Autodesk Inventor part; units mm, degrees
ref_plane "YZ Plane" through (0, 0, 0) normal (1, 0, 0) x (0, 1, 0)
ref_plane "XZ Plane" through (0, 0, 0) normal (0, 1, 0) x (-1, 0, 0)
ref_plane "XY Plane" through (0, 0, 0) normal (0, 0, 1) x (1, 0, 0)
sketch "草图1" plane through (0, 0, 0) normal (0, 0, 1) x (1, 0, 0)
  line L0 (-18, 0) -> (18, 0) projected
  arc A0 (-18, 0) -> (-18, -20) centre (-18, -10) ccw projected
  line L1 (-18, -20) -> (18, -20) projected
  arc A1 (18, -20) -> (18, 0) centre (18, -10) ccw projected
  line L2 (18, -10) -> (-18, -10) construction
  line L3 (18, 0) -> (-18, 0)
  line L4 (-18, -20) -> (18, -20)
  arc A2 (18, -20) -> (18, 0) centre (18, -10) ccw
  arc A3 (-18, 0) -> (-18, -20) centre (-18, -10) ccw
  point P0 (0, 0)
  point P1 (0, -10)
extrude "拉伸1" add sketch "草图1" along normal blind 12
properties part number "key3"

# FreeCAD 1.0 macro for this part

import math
import FreeCAD as App
import Part
import Sketcher
from FreeCAD import Vector
Q = App.Units.Quantity

doc = App.newDocument("Part")
body = doc.addObject("PartDesign::Body", "Body")

# Sketch on XY plane
sketch1 = body.newObject("Sketcher::SketchObject", "Sketch")
sketch1.AttachmentSupport = (doc.getObject("XY_Plane"), [""])
sketch1.MapMode = "FlatFace"
sketch1.addGeometry([
    Part.LineSegment(Vector(18, 0, 0), Vector(-18, 0, 0)),
    Part.ArcOfCircle(Part.Circle(Vector(-18, -10, 0), Vector(0, 0, 1), 10), math.radians(90), math.radians(270)),
    Part.LineSegment(Vector(-18, -20, 0), Vector(18, -20, 0)),
    Part.ArcOfCircle(Part.Circle(Vector(18, -10, 0), Vector(0, 0, 1), 10), math.radians(-90), math.radians(90)),
], False)
sketch1.addConstraint([
    Sketcher.Constraint("Tangent", 0, 2, 1, 1),
    Sketcher.Constraint("Tangent", 1, 2, 2, 1),
    Sketcher.Constraint("Tangent", 2, 2, 3, 1),
    Sketcher.Constraint("Tangent", 3, 2, 0, 1),
    Sketcher.Constraint("Horizontal", 0),
    Sketcher.Constraint("Horizontal", 2),
    Sketcher.Constraint("Symmetric", 0, 2, 3, 2, -1, 1),
    Sketcher.Constraint("Radius", 1, Q("10 mm")),
    Sketcher.Constraint("DistanceX", 0, 2, 0, 1, Q("36 mm")),
])
pad1 = body.newObject("PartDesign::Pad", "Pad")
pad1.Profile = sketch1
pad1.Length = 12

doc.recompute()
